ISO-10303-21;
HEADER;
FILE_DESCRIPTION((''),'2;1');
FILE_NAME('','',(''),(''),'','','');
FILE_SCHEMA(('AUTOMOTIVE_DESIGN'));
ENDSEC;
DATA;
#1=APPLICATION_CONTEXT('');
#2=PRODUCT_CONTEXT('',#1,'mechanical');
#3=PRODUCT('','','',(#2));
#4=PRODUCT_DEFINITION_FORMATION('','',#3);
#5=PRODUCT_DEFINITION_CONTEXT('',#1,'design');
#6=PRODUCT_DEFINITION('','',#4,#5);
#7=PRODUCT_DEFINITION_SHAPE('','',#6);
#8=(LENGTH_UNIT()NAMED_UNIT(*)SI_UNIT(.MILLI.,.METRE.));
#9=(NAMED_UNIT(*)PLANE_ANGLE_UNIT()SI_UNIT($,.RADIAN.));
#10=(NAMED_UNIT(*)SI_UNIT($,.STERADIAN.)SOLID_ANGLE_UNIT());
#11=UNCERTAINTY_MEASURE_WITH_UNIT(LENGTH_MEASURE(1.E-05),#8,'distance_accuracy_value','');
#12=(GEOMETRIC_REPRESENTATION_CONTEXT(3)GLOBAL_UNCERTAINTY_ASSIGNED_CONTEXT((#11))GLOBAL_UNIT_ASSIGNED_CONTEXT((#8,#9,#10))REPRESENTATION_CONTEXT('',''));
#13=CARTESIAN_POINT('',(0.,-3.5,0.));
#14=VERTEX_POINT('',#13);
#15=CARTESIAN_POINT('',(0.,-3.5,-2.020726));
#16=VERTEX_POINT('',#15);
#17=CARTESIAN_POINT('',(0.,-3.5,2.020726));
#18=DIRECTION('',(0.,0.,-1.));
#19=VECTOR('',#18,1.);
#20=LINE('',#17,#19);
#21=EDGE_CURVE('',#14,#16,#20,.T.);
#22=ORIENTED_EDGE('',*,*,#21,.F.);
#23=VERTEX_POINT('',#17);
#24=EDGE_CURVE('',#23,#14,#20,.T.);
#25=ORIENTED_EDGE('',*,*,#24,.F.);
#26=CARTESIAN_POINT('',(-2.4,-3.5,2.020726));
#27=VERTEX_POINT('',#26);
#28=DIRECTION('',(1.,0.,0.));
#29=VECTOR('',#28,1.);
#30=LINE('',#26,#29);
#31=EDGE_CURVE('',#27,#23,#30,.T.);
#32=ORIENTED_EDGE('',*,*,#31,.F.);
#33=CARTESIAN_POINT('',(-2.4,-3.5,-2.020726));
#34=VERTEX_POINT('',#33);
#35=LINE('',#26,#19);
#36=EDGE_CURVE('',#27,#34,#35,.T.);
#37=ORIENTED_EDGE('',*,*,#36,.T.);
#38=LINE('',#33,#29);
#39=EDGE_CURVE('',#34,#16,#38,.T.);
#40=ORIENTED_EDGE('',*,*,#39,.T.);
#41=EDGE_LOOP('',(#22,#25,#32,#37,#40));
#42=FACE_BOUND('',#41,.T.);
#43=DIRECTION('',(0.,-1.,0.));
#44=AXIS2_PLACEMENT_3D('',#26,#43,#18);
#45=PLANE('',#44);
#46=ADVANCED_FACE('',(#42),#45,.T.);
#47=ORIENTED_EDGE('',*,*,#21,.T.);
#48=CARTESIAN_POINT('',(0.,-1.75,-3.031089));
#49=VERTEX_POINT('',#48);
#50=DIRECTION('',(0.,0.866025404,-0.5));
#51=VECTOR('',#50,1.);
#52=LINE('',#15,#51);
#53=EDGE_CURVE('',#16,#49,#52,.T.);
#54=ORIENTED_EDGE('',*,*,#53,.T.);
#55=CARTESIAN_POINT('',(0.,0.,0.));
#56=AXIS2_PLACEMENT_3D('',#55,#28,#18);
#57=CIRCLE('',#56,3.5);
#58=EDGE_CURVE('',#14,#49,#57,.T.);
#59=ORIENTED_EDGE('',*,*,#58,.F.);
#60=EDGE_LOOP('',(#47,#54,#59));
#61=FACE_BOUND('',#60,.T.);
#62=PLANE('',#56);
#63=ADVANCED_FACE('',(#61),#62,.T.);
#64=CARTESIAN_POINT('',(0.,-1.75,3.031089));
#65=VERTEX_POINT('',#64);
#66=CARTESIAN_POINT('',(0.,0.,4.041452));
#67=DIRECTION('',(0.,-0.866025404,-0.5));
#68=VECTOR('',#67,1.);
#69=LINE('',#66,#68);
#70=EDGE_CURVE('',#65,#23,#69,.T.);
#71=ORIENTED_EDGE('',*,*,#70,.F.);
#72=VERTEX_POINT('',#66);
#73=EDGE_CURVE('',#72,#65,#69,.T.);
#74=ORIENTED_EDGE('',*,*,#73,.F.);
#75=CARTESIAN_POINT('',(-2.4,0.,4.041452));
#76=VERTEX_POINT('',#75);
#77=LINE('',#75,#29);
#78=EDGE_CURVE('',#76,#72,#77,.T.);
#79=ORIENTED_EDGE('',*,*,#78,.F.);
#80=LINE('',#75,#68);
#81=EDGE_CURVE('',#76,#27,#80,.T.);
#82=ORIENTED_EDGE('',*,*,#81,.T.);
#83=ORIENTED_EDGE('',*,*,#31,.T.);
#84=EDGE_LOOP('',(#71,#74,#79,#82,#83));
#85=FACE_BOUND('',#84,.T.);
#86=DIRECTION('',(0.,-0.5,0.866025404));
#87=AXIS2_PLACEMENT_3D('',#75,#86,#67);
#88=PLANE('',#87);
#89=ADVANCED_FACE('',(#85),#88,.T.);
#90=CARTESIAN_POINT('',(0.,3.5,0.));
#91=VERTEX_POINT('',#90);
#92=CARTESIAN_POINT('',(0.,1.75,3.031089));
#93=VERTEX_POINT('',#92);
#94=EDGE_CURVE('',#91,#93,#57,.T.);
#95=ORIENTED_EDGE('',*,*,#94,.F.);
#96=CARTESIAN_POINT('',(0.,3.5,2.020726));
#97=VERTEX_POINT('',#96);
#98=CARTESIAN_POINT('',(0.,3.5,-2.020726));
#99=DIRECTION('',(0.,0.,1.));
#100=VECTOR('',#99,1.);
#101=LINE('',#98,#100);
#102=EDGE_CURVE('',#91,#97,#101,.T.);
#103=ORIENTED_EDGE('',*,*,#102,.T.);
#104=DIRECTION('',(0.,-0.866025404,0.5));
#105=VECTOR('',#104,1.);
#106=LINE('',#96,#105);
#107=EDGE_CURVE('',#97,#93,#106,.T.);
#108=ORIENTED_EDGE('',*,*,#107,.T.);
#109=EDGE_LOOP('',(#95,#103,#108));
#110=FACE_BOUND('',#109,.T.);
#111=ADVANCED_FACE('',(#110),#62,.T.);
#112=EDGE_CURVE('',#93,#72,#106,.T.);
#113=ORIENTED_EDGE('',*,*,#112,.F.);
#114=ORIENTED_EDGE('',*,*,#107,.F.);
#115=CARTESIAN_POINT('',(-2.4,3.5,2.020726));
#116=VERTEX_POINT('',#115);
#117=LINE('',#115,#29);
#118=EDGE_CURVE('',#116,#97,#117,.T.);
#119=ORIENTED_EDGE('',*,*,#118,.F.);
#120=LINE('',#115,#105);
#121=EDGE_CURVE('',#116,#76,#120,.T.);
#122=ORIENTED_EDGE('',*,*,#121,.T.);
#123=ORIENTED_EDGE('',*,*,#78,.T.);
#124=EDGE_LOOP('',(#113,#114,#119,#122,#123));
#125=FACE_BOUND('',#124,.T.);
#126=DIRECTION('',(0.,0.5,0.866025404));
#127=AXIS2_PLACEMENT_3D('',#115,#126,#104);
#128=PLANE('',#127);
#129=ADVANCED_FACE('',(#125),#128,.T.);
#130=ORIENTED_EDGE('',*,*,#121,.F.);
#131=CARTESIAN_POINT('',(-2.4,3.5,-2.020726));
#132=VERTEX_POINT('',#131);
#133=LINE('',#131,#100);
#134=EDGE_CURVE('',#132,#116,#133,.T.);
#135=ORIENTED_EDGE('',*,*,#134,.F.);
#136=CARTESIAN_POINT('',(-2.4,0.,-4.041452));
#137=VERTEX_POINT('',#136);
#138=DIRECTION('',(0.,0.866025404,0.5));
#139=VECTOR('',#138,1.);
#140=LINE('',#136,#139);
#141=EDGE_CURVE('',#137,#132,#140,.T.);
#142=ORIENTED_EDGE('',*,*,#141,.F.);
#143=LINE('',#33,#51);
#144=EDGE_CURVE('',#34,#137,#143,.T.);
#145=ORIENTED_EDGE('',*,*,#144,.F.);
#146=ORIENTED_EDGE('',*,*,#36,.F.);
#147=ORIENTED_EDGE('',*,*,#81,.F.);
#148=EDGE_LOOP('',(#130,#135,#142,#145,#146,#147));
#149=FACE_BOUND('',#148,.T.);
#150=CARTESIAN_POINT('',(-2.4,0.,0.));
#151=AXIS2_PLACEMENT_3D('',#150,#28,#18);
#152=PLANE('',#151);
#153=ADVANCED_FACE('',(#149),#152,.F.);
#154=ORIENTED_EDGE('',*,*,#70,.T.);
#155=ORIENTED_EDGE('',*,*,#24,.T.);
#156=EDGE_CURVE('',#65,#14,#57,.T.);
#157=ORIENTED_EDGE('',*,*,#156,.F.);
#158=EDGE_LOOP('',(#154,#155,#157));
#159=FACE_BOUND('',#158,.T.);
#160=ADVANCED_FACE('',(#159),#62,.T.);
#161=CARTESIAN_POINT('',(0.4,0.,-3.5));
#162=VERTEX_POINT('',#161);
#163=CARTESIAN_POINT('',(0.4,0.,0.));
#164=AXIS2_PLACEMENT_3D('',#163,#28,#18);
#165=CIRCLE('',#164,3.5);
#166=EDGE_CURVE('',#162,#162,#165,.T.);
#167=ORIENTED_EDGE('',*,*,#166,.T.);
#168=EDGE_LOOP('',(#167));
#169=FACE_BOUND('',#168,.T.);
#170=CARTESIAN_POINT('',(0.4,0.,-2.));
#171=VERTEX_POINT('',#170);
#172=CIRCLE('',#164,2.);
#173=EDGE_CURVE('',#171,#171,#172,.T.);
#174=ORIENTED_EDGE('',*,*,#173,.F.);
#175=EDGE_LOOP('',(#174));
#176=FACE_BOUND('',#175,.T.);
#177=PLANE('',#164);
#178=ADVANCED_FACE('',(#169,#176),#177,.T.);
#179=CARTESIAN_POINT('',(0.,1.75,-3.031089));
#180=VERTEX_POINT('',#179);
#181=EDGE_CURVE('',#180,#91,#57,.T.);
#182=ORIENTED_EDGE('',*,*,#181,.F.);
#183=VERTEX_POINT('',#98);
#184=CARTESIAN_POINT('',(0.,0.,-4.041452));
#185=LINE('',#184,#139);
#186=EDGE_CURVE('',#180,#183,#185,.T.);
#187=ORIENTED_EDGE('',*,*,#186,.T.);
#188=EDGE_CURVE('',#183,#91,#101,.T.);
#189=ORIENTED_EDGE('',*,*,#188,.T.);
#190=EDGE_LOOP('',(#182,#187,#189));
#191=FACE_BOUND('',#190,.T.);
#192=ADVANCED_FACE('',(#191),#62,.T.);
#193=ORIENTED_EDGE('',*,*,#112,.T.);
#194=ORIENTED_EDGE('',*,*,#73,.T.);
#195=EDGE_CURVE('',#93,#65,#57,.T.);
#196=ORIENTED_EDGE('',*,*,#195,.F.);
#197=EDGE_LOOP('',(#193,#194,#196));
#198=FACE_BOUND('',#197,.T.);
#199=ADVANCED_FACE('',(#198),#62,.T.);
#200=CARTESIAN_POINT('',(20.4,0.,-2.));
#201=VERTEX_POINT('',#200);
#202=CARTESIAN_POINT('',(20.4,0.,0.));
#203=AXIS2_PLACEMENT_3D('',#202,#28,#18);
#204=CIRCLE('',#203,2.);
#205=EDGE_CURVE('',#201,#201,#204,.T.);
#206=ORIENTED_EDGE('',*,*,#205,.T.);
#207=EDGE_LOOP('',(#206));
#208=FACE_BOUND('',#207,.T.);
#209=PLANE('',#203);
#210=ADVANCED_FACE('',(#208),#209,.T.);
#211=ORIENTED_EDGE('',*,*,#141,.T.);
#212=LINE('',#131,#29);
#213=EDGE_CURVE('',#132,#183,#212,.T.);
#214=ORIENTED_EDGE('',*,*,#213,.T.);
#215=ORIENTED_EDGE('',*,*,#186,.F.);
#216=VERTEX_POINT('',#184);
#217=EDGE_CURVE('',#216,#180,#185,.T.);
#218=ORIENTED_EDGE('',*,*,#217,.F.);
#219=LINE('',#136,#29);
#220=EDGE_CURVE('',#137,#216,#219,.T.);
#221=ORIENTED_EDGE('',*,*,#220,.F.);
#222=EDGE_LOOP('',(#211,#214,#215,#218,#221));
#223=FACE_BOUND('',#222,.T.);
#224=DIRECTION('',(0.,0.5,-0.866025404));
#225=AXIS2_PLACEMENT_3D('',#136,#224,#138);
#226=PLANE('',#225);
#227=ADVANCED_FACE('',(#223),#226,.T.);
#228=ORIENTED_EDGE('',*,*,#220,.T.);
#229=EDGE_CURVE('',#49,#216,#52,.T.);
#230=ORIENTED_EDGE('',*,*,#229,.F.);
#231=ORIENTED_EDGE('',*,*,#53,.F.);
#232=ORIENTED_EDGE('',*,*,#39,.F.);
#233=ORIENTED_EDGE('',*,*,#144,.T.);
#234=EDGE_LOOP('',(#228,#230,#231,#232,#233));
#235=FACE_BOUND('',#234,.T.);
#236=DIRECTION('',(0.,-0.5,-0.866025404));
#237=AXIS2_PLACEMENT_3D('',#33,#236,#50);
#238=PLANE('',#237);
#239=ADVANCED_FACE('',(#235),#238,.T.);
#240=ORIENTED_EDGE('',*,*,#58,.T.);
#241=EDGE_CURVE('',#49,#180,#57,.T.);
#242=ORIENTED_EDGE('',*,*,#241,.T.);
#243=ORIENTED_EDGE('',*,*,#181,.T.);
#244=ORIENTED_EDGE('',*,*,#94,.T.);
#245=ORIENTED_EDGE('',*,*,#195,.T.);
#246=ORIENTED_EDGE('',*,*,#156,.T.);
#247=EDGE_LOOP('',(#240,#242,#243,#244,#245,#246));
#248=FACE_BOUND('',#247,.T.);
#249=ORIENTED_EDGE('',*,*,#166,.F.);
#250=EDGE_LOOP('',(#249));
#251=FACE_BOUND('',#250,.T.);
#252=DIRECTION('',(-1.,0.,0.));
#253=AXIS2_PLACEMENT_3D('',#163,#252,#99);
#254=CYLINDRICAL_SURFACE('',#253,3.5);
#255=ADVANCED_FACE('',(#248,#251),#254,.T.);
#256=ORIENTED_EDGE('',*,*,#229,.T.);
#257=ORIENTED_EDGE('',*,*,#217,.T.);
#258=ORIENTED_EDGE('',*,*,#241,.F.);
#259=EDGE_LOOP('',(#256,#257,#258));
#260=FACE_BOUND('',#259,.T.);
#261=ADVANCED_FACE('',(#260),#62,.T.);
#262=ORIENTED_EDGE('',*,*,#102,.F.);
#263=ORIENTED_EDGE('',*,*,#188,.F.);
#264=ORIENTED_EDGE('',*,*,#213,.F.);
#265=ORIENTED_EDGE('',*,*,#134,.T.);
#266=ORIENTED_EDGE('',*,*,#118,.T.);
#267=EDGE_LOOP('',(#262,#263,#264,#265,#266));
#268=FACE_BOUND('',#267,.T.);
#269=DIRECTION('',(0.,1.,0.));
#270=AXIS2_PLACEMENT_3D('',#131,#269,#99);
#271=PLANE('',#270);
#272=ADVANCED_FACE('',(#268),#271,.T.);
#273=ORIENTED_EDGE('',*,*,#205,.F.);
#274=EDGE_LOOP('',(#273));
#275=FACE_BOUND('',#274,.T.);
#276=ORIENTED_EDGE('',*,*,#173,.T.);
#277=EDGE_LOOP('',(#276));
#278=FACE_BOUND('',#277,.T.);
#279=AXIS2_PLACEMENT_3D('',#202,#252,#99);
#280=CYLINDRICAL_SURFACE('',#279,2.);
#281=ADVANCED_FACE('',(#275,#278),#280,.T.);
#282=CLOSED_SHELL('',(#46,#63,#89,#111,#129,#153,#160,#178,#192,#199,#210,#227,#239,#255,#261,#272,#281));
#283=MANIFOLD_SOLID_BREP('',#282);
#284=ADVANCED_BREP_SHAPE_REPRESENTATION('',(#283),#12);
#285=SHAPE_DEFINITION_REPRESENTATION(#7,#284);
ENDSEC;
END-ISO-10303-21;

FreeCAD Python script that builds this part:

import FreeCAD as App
import Part
import Sketcher
Q = App.Units.Quantity

doc = App.newDocument("Part")
body = doc.addObject("PartDesign::Body", "Body")

sketch1 = body.newObject("Sketcher::SketchObject", "Sketch")
sketch1.AttachmentSupport = (doc.getObject("YZ_Plane"), [""])
sketch1.MapMode = "FlatFace"
sketch1.addGeometry(Part.LineSegment(App.Vector(0, 4, 0), App.Vector(-3.5, 2, 0)), False)
sketch1.addGeometry(Part.LineSegment(App.Vector(-3.5, 2, 0), App.Vector(-3.5, -2, 0)), False)
sketch1.addGeometry(Part.LineSegment(App.Vector(-3.5, -2, 0), App.Vector(0, -4, 0)), False)
sketch1.addGeometry(Part.LineSegment(App.Vector(0, -4, 0), App.Vector(3.5, -2, 0)), False)
sketch1.addGeometry(Part.LineSegment(App.Vector(3.5, -2, 0), App.Vector(3.5, 2, 0)), False)
sketch1.addGeometry(Part.LineSegment(App.Vector(3.5, 2, 0), App.Vector(0, 4, 0)), False)
sketch1.addConstraint(Sketcher.Constraint("Coincident", 0, 2, 1, 1))
sketch1.addConstraint(Sketcher.Constraint("Coincident", 1, 2, 2, 1))
sketch1.addConstraint(Sketcher.Constraint("Coincident", 2, 2, 3, 1))
sketch1.addConstraint(Sketcher.Constraint("Coincident", 3, 2, 4, 1))
sketch1.addConstraint(Sketcher.Constraint("Coincident", 4, 2, 5, 1))
sketch1.addConstraint(Sketcher.Constraint("Coincident", 5, 2, 0, 1))
sketch1.addConstraint(Sketcher.Constraint("Vertical", 1))
sketch1.addConstraint(Sketcher.Constraint("Vertical", 4))
sketch1.addConstraint(Sketcher.Constraint("Symmetric", 0, 2, 3, 2, -1, 1))
sketch1.addConstraint(Sketcher.Constraint("Symmetric", 2, 2, 5, 2, -1, 1))
sketch1.addConstraint(Sketcher.Constraint("PointOnObject", 2, 2, -2))
sketch1.addConstraint(Sketcher.Constraint("Parallel", 2, 5))
sketch1.addConstraint(Sketcher.Constraint("Horizontal", 1, 2, 3, 2))
sketch1.addConstraint(Sketcher.Constraint("Angle", 0, Q("-150 deg")))
sketch1.addConstraint(Sketcher.Constraint("DistanceX", 1, 2, 3, 2, 7.0))
sketch1.addConstraint(Sketcher.Constraint("DistanceY", 1, 2, 1, 1, 4.041452))
pad1 = body.newObject("PartDesign::Pad", "Pad")
pad1.Profile = sketch1
pad1.Length = 2.4
pad1.Reversed = True

sketch2 = body.newObject("Sketcher::SketchObject", "Sketch001")
sketch2.AttachmentSupport = (doc.getObject("YZ_Plane"), [""])
sketch2.MapMode = "FlatFace"
sketch2.addGeometry(Part.Circle(App.Vector(0, 0, 0), App.Vector(0, 0, 1), 3.5), False)
sketch2.addConstraint(Sketcher.Constraint("Coincident", 0, 3, -1, 1))
sketch2.addConstraint(Sketcher.Constraint("Diameter", 0, 7.0))
pad2 = body.newObject("PartDesign::Pad", "Pad001")
pad2.Profile = sketch2
pad2.Length = 0.4

sketch3 = body.newObject("Sketcher::SketchObject", "Sketch002")
sketch3.AttachmentSupport = (doc.getObject("YZ_Plane"), [""])
sketch3.MapMode = "FlatFace"
sketch3.AttachmentOffset = App.Placement(App.Vector(0, 0, 0.4), App.Rotation())
sketch3.addGeometry(Part.Circle(App.Vector(0, 0, 0), App.Vector(0, 0, 1), 2), False)
sketch3.addConstraint(Sketcher.Constraint("Coincident", 0, 3, -1, 1))
sketch3.addConstraint(Sketcher.Constraint("Diameter", 0, 4.0))
pad3 = body.newObject("PartDesign::Pad", "Pad002")
pad3.Profile = sketch3
pad3.Length = 20

doc.recompute()
